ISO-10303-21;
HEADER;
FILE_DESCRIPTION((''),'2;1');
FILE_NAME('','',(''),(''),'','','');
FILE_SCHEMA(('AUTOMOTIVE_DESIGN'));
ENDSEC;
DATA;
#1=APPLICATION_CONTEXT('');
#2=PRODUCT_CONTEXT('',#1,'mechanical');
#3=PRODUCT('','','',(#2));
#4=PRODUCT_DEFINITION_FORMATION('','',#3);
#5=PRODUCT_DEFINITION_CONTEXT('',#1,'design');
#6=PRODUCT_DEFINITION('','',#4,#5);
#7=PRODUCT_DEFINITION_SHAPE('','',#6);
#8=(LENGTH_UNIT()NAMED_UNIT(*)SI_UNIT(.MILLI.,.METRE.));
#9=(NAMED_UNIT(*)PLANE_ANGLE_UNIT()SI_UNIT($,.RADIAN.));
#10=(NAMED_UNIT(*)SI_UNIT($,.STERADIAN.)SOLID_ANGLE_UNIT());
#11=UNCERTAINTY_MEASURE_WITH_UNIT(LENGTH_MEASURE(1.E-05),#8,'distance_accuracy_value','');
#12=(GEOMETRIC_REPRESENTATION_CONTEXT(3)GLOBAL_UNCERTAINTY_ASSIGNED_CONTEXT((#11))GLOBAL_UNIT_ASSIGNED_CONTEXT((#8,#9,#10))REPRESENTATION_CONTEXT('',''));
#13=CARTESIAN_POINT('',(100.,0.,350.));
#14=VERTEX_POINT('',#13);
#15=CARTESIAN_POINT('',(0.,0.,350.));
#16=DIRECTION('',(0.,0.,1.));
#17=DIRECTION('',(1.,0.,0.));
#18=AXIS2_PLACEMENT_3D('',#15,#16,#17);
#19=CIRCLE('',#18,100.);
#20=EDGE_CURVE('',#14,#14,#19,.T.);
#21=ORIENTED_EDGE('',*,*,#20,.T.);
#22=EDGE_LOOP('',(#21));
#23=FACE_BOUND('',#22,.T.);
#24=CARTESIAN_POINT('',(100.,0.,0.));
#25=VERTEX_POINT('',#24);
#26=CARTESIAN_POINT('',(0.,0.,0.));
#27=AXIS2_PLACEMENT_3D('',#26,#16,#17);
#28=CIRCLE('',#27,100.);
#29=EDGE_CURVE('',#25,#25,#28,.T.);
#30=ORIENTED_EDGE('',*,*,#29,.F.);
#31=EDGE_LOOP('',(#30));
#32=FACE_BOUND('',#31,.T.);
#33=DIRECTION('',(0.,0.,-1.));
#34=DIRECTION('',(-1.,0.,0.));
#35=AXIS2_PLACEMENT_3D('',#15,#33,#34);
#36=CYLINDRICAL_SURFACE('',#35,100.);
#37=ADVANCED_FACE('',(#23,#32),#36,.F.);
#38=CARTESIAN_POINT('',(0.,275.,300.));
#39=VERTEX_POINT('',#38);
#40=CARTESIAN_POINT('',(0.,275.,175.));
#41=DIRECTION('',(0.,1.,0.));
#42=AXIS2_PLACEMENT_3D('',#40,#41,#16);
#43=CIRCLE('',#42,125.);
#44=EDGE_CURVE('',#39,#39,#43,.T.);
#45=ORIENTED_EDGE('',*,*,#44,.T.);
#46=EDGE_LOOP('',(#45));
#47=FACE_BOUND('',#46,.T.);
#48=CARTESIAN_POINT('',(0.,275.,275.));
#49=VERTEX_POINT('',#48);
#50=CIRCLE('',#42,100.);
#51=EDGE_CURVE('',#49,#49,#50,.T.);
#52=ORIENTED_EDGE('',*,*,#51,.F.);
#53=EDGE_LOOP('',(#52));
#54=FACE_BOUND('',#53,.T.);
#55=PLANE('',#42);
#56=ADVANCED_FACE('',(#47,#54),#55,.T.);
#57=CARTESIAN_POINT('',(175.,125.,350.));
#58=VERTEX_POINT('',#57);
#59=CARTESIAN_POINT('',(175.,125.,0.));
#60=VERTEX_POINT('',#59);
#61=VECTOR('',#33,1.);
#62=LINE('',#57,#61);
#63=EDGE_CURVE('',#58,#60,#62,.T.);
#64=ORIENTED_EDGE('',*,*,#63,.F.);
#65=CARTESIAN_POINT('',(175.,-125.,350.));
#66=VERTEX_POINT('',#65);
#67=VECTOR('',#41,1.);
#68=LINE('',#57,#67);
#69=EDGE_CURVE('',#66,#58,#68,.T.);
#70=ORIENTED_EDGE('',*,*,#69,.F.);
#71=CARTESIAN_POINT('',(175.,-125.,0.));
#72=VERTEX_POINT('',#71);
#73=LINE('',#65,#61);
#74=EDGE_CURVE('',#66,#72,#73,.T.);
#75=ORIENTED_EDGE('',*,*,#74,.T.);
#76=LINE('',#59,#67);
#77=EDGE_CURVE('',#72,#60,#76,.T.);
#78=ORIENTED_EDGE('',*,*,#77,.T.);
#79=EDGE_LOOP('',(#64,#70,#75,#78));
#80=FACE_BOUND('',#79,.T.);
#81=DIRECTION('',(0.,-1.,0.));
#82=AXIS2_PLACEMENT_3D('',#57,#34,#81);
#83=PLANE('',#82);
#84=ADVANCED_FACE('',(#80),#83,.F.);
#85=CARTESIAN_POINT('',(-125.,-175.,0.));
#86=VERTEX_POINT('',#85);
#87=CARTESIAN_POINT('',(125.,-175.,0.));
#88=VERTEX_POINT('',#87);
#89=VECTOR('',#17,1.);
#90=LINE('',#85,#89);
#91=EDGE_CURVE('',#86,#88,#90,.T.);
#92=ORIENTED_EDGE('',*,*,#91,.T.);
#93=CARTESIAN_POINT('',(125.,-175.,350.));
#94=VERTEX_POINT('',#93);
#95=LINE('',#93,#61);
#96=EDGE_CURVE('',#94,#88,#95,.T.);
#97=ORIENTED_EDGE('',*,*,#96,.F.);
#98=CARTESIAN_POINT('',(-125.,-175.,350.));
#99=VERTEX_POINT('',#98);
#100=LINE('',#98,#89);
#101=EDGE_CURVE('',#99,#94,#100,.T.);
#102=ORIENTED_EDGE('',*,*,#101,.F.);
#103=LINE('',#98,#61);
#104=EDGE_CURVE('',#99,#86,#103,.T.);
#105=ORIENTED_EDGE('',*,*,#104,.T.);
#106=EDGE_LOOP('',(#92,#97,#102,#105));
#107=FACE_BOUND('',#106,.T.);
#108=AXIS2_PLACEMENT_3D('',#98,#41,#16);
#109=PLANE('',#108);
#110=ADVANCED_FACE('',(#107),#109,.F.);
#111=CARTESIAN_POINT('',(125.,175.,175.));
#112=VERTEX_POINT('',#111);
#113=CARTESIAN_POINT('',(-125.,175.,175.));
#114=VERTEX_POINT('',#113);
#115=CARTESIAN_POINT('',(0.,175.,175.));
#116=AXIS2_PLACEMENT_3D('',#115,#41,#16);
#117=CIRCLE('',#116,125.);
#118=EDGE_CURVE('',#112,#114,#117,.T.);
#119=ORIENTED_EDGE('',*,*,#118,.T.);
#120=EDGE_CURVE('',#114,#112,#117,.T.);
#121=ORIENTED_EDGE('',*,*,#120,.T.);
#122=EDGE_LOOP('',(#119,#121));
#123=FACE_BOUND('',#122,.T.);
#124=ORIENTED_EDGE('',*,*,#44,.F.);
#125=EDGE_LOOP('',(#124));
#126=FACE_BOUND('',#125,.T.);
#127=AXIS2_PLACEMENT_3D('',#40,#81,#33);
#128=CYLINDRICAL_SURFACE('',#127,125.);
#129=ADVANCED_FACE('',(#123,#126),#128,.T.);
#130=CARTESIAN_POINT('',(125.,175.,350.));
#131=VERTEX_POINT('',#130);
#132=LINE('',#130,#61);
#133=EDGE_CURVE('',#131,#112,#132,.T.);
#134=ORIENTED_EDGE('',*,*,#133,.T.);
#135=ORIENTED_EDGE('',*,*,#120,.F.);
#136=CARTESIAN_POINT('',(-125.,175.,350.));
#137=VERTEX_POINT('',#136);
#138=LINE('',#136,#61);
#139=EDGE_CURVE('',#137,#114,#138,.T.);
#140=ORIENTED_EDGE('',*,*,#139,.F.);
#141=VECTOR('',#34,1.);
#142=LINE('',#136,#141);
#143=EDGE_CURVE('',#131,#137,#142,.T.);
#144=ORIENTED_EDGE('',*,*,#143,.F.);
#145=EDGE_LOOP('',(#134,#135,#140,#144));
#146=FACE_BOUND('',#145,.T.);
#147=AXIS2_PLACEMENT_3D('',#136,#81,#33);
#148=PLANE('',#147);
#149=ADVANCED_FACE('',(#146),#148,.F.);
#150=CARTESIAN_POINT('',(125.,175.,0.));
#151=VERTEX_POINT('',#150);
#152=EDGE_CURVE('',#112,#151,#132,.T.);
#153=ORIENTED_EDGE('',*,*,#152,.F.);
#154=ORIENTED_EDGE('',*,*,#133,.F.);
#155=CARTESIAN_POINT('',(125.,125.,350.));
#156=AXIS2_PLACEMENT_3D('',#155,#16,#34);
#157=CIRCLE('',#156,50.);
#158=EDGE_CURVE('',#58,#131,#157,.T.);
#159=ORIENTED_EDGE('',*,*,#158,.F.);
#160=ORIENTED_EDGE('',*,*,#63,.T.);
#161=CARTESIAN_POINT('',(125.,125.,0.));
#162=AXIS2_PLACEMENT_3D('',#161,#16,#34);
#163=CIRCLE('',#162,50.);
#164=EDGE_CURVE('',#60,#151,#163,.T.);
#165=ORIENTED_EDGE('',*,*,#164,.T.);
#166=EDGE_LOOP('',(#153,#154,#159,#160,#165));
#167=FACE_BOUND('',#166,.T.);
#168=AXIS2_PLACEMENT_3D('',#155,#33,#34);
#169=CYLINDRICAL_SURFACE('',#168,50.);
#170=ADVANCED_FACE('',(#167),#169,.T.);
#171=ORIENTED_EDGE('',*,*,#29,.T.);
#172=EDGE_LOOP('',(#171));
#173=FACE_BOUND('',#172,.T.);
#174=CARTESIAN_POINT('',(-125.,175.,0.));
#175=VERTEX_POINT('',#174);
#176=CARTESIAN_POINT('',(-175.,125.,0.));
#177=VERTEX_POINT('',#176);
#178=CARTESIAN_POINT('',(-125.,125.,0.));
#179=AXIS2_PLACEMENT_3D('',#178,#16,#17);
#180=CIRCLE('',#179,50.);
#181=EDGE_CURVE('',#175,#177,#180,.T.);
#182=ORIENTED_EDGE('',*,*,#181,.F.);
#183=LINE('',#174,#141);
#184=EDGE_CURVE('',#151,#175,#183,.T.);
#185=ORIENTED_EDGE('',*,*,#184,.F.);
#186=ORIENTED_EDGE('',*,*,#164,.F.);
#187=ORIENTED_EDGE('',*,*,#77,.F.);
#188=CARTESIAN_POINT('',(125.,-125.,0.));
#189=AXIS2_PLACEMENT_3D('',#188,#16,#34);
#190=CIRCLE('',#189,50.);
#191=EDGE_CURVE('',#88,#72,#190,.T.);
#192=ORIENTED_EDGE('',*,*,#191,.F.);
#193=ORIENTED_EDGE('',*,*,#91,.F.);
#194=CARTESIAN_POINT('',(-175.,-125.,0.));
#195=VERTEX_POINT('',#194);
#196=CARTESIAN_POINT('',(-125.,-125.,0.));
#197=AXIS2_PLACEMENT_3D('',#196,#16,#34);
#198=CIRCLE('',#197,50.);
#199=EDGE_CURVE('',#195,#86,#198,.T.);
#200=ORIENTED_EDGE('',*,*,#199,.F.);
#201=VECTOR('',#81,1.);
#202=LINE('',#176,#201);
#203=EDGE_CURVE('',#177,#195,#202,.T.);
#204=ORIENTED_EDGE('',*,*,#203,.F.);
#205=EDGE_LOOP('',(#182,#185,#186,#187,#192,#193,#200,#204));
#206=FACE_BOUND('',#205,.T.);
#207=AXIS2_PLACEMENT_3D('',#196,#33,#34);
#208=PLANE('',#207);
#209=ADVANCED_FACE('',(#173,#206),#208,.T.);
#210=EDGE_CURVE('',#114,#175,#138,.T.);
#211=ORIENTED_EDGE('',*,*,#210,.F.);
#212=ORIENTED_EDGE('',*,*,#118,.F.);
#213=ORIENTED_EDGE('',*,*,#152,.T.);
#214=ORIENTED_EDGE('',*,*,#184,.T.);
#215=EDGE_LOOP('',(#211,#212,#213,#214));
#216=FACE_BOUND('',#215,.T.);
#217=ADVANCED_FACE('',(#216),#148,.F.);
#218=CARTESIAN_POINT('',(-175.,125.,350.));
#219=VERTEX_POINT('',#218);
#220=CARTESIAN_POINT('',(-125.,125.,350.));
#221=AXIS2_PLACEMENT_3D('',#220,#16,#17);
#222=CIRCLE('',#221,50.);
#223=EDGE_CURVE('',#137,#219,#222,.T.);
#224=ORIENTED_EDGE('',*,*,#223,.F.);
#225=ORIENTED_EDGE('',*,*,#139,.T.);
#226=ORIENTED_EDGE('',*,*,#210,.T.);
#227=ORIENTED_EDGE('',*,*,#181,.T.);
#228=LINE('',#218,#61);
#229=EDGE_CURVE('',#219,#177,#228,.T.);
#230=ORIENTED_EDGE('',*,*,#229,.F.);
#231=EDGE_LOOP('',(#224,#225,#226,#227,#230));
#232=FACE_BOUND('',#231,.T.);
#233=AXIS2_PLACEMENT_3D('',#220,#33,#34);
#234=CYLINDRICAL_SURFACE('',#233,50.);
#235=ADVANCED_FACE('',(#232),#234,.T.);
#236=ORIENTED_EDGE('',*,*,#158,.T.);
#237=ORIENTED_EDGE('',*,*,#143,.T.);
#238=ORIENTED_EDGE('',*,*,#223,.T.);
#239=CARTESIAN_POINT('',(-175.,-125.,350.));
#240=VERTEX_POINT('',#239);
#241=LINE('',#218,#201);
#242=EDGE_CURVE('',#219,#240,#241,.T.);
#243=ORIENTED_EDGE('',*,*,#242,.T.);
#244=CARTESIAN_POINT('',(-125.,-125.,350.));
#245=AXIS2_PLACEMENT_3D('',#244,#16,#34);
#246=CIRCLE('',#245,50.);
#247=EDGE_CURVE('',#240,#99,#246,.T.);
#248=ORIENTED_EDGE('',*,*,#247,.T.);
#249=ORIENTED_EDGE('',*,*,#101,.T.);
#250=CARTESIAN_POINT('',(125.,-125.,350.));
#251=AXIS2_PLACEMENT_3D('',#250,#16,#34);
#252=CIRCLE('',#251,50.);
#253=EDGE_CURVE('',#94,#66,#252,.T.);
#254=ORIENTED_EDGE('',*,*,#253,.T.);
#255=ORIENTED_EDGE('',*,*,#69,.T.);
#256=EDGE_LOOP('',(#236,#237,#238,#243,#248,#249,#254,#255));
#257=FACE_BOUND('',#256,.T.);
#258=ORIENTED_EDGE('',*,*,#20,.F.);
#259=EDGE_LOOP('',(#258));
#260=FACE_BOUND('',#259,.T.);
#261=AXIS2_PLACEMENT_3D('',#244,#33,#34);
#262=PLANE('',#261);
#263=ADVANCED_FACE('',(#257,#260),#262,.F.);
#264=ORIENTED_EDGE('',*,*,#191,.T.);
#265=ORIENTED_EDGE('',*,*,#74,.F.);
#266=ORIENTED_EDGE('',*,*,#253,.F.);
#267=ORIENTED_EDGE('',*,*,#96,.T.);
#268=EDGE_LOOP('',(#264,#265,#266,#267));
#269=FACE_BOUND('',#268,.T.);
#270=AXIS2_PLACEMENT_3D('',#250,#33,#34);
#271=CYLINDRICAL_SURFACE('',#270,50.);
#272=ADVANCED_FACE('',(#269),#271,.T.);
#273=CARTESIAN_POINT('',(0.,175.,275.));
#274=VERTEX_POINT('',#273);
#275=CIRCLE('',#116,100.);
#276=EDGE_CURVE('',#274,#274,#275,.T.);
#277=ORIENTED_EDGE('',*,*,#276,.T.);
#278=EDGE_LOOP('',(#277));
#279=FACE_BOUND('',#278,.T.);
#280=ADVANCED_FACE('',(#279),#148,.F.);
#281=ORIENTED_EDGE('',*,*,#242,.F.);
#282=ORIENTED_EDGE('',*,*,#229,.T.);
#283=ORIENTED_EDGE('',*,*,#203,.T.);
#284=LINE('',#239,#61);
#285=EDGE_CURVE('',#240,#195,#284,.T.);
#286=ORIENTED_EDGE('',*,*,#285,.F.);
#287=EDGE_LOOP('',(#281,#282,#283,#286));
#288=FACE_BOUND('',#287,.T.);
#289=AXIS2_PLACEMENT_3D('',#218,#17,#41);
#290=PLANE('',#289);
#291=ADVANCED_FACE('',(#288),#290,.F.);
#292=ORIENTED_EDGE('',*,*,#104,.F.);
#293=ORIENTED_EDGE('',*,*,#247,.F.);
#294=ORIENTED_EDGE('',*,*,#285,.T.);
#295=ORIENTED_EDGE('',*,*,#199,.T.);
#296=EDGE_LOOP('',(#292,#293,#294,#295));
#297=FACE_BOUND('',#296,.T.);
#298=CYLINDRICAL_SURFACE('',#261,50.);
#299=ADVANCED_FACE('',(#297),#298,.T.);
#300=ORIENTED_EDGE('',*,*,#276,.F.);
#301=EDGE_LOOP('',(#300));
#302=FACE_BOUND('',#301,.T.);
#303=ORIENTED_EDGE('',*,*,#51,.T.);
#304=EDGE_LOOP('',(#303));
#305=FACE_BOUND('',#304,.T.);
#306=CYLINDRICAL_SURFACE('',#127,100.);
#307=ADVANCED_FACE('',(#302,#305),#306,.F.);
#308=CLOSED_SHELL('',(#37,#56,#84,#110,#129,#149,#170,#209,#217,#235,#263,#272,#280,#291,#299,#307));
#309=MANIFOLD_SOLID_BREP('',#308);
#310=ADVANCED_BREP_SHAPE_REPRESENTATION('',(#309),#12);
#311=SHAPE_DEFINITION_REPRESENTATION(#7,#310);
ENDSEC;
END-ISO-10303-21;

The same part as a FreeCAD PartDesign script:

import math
import FreeCAD as App
import Part
import Sketcher
from FreeCAD import Vector

doc = App.newDocument("Part")
params = doc.addObject("Spreadsheet::Sheet", "Params")
for row, (alias, value) in enumerate([
    ("sketch1_diameter", "200 mm"),
    ("sketch1_radius", "50 mm"),
    ("sketch1_width", "250 mm"),
    ("pad1_length", "350 mm"),
    ("sketch2_diameter", "250 mm"),
    ("sketch2_diameter2", "200 mm"),
    ("pad2_length", "100 mm"),
], start=1):
    params.set(f"A{row}", alias)
    params.set(f"B{row}", "=" + value)
    params.setAlias(f"B{row}", alias)

body = doc.addObject("PartDesign::Body", "Body")

# Sketch on XY plane
sketch1 = doc.addObject("Sketcher::SketchObject", "Sketch")
body.addObject(sketch1)
sketch1.AttachmentSupport = (doc.XY_Plane, [""])
sketch1.MapMode = "FlatFace"
sketch1.addGeometry([
    Part.LineSegment(Vector(125, 175, 0), Vector(-125, 175, 0)),  # 0
    Part.ArcOfCircle(Part.Circle(Vector(-125, 125, 0), Vector(0, 0, 1), 50), math.radians(90), math.radians(180)),  # 1
    Part.LineSegment(Vector(-175, 125, 0), Vector(-175, -125, 0)),  # 2
    Part.ArcOfCircle(Part.Circle(Vector(-125, -125, 0), Vector(0, 0, 1), 50), math.radians(-180), math.radians(-90)),  # 3
    Part.LineSegment(Vector(-125, -175, 0), Vector(125, -175, 0)),  # 4
    Part.ArcOfCircle(Part.Circle(Vector(125, -125, 0), Vector(0, 0, 1), 50), math.radians(-90), math.radians(0)),  # 5
    Part.LineSegment(Vector(175, -125, 0), Vector(175, 125, 0)),  # 6
    Part.ArcOfCircle(Part.Circle(Vector(125, 125, 0), Vector(0, 0, 1), 50), math.radians(0), math.radians(90)),  # 7
    Part.Circle(Vector(0, 0, 0), Vector(0, 0, 1), 100),  # 8
], False)
sketch1.addConstraint([
    Sketcher.Constraint("Tangent", 0, 2, 1, 1),
    Sketcher.Constraint("Tangent", 1, 2, 2, 1),
    Sketcher.Constraint("Tangent", 2, 2, 3, 1),
    Sketcher.Constraint("Tangent", 3, 2, 4, 1),
    Sketcher.Constraint("Tangent", 4, 2, 5, 1),
    Sketcher.Constraint("Tangent", 5, 2, 6, 1),
    Sketcher.Constraint("Tangent", 6, 2, 7, 1),
    Sketcher.Constraint("Tangent", 7, 2, 0, 1),
    Sketcher.Constraint("Horizontal", 0),
    Sketcher.Constraint("Vertical", 2),
    Sketcher.Constraint("Horizontal", 4),
    Sketcher.Constraint("Vertical", 6),
    Sketcher.Constraint("Coincident", 8, 3, -1, 1),
    Sketcher.Constraint("Equal", 1, 3),
    Sketcher.Constraint("Equal", 3, 5),
    Sketcher.Constraint("Equal", 5, 7),
    Sketcher.Constraint("Symmetric", 1, 3, 5, 3, -1, 1),
    Sketcher.Constraint("Equal", 4, 2),
    Sketcher.Constraint("Diameter", 8, 200.0),
    Sketcher.Constraint("Radius", 1, 50.0),
    Sketcher.Constraint("DistanceX", 0, 2, 0, 1, 250.0),
])
sketch1.setExpression("Constraints[18]", "Params.sketch1_diameter")
sketch1.setExpression("Constraints[19]", "Params.sketch1_radius")
sketch1.setExpression("Constraints[20]", "Params.sketch1_width")
pad1 = doc.addObject("PartDesign::Pad", "Pad")
body.addObject(pad1)
pad1.Profile = sketch1
pad1.setExpression("Length", "Params.pad1_length")

# Sketch on XZ plane
sketch2 = doc.addObject("Sketcher::SketchObject", "Sketch001")
body.addObject(sketch2)
sketch2.AttachmentSupport = (doc.XZ_Plane, [""])
sketch2.MapMode = "FlatFace"
sketch2.AttachmentOffset = App.Placement(Vector(0, 0, -175), App.Rotation())
sketch2.addGeometry([
    Part.Circle(Vector(0, 175, 0), Vector(0, 0, 1), 125),
    Part.Circle(Vector(0, 175, 0), Vector(0, 0, 1), 100),
], False)
sketch2.addConstraint([
    Sketcher.Constraint("Coincident", 1, 3, 0, 3),
    Sketcher.Constraint("PointOnObject", 0, 3, -2),
    Sketcher.Constraint("Diameter", 0, 250.0),
    Sketcher.Constraint("Diameter", 1, 200.0),
    Sketcher.Constraint("DistanceY", -1, 1, 0, 3, 175.0),
])
sketch2.setExpression("Constraints[2]", "Params.sketch2_diameter")
sketch2.setExpression("Constraints[3]", "Params.sketch2_diameter2")
pad2 = doc.addObject("PartDesign::Pad", "Pad001")
body.addObject(pad2)
pad2.Profile = sketch2
pad2.setExpression("Length", "Params.pad2_length")
pad2.Reversed = True

doc.recompute()
